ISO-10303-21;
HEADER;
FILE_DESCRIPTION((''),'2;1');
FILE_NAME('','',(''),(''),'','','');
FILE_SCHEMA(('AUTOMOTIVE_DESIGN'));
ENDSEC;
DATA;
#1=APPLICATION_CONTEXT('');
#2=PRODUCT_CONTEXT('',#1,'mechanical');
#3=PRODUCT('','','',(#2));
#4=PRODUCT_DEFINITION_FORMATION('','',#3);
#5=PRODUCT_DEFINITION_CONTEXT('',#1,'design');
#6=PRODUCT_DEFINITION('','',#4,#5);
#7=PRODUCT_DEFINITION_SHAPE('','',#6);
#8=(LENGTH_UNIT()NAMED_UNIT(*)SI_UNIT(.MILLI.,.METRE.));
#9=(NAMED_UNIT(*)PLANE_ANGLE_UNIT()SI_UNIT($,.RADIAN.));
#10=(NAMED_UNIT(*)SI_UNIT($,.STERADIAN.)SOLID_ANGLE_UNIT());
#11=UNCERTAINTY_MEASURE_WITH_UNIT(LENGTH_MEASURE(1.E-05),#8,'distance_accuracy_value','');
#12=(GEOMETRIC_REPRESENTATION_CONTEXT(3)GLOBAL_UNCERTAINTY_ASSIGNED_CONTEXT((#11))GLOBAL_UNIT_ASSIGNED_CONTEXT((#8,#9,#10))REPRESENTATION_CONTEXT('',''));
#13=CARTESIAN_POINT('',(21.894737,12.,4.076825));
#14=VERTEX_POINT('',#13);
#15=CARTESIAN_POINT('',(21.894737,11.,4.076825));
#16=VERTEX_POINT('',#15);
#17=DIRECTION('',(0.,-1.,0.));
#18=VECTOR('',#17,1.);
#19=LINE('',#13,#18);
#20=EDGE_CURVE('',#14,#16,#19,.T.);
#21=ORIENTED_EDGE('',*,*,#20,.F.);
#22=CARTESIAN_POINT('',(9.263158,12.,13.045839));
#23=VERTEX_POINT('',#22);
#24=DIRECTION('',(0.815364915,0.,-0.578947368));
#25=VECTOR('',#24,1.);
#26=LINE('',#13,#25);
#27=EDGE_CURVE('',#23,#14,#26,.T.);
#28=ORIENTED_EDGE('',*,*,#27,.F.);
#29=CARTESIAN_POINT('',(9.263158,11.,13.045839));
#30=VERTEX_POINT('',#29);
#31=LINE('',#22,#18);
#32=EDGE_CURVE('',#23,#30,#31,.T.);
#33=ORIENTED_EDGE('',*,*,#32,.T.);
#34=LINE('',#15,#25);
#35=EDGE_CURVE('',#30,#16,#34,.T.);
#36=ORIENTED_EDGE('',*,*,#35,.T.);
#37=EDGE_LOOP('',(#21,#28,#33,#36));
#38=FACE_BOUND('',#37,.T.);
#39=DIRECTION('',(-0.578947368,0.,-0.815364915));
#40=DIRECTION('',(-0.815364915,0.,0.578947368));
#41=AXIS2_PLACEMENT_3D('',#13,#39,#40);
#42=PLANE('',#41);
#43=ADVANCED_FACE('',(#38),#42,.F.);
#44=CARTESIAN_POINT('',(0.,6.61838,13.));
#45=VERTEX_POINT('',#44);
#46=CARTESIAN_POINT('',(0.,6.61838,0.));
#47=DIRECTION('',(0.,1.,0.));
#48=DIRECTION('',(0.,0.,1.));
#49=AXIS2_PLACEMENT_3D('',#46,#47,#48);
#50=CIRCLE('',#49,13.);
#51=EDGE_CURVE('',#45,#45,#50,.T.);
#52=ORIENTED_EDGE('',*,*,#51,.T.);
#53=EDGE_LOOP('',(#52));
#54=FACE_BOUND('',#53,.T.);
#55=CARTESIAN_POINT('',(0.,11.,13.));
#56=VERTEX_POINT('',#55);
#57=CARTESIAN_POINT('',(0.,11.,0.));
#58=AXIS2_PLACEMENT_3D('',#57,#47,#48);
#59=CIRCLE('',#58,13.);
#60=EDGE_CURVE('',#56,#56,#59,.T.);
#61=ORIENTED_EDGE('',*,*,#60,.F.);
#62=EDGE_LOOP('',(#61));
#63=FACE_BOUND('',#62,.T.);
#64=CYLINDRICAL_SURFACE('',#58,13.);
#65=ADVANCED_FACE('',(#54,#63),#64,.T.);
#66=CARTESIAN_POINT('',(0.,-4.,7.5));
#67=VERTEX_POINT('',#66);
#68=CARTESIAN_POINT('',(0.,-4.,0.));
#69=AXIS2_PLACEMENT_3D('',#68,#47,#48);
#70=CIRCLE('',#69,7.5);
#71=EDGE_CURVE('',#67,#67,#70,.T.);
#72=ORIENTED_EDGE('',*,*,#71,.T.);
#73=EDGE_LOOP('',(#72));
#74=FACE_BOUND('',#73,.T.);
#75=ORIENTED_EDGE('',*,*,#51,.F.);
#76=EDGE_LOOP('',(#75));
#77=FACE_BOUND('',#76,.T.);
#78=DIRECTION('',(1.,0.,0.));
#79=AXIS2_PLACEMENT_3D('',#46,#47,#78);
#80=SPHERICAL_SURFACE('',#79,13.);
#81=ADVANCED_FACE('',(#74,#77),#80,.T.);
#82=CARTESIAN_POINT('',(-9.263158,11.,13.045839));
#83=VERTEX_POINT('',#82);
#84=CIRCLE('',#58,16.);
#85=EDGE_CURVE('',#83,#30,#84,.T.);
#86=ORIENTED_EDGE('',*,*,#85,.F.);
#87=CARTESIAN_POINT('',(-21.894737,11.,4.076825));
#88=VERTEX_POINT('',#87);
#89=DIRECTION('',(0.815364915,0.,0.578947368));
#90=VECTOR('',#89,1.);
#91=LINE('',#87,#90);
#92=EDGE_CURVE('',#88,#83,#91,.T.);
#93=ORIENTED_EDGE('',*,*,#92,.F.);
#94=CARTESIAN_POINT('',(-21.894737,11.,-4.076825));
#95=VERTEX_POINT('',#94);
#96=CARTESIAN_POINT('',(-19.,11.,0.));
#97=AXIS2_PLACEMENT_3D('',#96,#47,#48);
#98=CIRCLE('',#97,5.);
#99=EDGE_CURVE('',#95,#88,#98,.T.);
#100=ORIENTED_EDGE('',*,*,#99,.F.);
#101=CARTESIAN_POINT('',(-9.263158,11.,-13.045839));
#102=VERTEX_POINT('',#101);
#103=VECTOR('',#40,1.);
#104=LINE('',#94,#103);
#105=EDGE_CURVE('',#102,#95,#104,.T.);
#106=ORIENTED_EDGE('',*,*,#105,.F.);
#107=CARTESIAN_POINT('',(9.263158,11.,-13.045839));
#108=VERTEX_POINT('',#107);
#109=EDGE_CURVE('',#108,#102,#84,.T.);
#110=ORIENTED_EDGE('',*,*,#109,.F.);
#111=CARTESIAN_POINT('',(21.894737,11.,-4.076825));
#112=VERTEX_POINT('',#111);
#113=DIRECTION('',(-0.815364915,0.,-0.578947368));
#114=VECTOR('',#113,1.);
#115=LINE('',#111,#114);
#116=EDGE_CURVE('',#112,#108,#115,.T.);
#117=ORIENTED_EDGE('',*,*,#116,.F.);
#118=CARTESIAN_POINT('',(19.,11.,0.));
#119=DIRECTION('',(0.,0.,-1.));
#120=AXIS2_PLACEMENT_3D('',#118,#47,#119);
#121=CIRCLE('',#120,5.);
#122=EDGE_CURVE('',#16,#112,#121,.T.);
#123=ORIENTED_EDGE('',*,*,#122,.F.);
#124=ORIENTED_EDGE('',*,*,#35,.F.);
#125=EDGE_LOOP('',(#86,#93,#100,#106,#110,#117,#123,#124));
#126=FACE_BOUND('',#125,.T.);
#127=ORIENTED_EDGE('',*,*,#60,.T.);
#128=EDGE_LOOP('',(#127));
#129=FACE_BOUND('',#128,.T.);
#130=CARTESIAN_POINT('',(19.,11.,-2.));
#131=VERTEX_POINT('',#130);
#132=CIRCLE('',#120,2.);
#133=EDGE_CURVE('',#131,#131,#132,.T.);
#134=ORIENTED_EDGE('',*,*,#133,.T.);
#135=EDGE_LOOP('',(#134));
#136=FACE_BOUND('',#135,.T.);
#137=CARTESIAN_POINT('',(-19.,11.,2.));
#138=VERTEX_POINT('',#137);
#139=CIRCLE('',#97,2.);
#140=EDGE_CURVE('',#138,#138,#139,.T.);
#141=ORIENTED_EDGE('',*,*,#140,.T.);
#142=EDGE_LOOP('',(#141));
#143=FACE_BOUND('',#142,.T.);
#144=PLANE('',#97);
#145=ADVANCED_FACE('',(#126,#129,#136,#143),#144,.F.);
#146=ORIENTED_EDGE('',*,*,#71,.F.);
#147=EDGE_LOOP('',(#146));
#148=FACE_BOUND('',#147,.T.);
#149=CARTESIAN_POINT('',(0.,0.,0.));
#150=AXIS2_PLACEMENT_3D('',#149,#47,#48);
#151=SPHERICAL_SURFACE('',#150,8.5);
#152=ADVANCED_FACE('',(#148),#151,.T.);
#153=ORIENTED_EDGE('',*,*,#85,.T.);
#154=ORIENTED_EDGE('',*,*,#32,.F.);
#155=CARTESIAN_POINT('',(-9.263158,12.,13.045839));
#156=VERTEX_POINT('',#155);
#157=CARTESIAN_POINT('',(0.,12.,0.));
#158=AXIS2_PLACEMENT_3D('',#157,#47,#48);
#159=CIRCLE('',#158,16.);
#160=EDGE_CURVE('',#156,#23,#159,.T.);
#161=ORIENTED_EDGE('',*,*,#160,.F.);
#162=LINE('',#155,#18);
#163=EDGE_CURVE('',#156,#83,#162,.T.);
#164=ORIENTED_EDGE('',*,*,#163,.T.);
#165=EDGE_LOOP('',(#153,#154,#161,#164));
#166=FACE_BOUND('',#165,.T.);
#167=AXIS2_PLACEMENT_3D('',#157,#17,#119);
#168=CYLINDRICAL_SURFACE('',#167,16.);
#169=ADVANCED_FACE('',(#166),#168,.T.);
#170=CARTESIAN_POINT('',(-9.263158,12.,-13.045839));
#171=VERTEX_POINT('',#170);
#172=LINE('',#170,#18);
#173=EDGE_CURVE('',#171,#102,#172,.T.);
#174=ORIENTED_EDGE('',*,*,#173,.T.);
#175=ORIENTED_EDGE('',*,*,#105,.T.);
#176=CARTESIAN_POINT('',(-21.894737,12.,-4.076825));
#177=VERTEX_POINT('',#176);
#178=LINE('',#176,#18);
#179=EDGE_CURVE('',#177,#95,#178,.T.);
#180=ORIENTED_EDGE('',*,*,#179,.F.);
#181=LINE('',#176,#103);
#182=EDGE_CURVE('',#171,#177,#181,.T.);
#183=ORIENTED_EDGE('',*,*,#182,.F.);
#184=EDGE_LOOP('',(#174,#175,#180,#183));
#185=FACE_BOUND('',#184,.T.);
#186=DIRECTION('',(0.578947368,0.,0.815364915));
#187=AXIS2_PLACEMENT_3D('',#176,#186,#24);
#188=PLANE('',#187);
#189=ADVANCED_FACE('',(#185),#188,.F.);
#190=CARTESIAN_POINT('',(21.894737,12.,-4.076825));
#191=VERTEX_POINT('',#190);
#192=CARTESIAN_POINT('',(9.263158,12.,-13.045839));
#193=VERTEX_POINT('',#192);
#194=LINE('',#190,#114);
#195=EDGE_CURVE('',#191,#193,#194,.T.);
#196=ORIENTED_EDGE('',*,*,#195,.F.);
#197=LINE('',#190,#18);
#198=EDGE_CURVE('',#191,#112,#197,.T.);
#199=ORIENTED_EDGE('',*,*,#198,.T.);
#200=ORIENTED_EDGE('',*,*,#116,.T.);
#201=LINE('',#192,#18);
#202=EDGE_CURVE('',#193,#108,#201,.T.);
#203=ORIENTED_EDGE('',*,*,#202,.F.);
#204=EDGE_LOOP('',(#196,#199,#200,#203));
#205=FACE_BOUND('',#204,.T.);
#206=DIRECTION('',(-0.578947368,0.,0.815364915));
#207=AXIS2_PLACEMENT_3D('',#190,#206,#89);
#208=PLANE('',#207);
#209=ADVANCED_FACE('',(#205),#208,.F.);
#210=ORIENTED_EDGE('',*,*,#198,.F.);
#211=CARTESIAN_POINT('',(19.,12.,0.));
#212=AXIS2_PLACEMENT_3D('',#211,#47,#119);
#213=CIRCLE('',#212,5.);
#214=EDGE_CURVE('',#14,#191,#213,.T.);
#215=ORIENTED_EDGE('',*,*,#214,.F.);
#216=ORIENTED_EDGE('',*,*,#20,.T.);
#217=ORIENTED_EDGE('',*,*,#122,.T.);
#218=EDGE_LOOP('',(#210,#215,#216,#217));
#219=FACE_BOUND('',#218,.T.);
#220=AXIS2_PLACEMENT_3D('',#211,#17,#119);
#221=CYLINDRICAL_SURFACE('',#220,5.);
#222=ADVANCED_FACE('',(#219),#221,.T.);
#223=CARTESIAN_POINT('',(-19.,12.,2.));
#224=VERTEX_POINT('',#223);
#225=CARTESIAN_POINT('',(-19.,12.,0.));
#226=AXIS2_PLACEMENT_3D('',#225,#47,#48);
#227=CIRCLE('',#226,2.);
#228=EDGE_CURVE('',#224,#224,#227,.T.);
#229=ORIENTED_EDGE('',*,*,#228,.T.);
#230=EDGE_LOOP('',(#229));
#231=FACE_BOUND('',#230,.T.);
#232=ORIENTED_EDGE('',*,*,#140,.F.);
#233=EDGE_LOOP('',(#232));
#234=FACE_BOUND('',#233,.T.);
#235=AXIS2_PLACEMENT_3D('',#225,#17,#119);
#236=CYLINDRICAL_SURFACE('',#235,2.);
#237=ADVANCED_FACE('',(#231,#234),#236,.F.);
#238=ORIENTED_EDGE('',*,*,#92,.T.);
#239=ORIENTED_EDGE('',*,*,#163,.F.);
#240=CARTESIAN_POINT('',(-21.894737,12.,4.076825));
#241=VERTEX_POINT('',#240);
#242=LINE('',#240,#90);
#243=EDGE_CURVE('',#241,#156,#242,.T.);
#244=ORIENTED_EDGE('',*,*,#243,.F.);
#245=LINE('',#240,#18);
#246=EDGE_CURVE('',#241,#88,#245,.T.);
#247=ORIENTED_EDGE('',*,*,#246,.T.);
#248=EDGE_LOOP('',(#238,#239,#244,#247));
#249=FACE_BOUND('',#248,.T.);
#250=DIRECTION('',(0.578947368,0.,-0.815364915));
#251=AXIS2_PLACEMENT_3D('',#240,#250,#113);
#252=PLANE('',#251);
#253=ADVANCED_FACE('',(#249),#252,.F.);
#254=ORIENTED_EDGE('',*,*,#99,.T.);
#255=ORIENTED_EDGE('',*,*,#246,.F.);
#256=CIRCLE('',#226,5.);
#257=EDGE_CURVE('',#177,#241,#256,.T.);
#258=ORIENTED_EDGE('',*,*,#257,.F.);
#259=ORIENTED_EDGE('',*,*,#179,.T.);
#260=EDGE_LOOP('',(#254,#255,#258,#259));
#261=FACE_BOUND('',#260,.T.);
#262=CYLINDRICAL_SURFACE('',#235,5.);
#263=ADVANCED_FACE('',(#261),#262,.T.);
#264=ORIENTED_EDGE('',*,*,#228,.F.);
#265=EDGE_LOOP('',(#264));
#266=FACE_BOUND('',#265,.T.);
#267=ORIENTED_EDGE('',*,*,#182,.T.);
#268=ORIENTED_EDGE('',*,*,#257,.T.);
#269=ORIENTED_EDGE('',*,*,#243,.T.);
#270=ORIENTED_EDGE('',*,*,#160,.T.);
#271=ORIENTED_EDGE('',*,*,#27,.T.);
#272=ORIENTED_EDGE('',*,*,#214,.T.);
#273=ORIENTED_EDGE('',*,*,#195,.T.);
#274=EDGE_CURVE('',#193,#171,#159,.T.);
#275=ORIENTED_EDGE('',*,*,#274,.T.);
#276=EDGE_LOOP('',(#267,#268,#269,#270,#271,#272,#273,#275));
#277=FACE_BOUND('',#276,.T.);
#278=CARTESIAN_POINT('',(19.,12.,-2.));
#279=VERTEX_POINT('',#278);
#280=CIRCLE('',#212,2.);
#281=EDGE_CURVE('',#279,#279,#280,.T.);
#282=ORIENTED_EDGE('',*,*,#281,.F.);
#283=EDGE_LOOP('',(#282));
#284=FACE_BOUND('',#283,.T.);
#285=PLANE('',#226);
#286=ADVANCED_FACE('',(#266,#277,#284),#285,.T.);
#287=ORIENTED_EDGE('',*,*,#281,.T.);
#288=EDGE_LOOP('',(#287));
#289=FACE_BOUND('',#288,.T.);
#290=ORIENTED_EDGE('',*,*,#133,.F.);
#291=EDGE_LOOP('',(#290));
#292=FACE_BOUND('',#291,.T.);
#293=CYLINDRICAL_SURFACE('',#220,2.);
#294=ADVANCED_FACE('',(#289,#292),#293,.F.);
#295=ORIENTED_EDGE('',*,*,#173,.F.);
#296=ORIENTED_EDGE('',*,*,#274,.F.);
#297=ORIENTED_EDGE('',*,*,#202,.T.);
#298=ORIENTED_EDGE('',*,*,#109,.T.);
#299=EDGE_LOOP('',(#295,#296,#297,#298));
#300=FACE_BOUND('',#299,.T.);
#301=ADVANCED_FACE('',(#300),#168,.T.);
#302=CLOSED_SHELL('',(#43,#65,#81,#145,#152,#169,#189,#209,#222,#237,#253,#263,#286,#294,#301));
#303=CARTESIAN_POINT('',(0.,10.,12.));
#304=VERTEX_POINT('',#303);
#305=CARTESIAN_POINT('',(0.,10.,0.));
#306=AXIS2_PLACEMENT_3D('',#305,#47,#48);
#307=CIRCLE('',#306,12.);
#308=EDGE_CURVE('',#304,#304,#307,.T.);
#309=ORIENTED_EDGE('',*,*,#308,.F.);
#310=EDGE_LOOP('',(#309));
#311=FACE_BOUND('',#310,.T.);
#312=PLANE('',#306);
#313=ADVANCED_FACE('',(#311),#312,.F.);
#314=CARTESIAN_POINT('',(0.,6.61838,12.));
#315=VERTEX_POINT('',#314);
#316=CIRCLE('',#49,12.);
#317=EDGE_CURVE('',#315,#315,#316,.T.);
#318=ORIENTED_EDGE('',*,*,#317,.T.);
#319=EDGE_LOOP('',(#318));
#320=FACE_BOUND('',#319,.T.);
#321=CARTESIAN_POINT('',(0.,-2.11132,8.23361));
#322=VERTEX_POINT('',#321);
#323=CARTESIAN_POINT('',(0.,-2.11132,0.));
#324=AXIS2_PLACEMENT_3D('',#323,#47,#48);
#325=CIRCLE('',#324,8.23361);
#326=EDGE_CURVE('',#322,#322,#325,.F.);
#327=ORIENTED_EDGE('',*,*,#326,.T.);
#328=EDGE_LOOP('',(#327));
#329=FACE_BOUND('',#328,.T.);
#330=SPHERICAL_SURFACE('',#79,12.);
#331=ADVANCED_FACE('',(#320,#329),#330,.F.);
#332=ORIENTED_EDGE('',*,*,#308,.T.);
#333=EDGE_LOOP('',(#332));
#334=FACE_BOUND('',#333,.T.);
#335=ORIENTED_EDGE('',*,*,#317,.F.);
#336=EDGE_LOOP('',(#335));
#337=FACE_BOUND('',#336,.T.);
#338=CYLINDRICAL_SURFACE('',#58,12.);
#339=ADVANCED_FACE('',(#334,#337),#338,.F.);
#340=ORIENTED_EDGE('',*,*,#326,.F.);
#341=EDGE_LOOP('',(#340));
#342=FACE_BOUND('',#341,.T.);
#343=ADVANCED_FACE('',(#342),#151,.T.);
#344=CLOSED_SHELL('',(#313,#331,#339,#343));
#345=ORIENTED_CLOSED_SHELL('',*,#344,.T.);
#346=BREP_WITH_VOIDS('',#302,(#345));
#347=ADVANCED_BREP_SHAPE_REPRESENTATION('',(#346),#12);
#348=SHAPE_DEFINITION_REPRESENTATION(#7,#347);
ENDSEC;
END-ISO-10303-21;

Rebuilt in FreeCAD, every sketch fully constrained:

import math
import FreeCAD as App
import Part
import Sketcher
from FreeCAD import Vector

doc = App.newDocument("Part")
body = doc.addObject("PartDesign::Body", "Body")

# Sketch on XZ plane
sketch1 = body.newObject("Sketcher::SketchObject", "Sketch")
sketch1.AttachmentSupport = (doc.getObject("XZ_Plane"), [""])
sketch1.MapMode = "FlatFace"
sketch1.addGeometry([
    Part.LineSegment(Vector(0, -8, 0), Vector(0, 8, 0)),
    Part.ArcOfCircle(Part.Circle(Vector(0, 0, 0), Vector(0, 0, 1), 8), math.radians(-90), math.radians(90)),
], False)
sketch1.addConstraint([
    Sketcher.Constraint("Coincident", 0, 1, 1, 1),
    Sketcher.Constraint("Coincident", 1, 2, 0, 2),
    Sketcher.Constraint("Vertical", 0),
    Sketcher.Constraint("Coincident", 1, 3, -1, 1),
    Sketcher.Constraint("PointOnObject", 0, 1, -2),
    Sketcher.Constraint("Radius", 1, 8.5),
])
revolution = body.newObject("PartDesign::Revolution", "Revolution")
revolution.Profile = sketch1
revolution.ReferenceAxis = (sketch1, ["V_Axis"])
revolution.Angle = 360

# Sketch on XY plane
sketch2 = body.newObject("Sketcher::SketchObject", "Sketch001")
sketch2.AttachmentSupport = (doc.getObject("XY_Plane"), [""])
sketch2.MapMode = "FlatFace"
sketch2.addGeometry([
    Part.LineSegment(Vector(13, 6.6, 0), Vector(13, 11, 0)),  # 0
    Part.LineSegment(Vector(13, 11, 0), Vector(0, 11, 0)),  # 1
    Part.LineSegment(Vector(0, 11, 0), Vector(0, 10, 0)),  # 2
    Part.LineSegment(Vector(0, 10, 0), Vector(12, 10, 0)),  # 3
    Part.LineSegment(Vector(12, 10, 0), Vector(12, 6.6, 0)),  # 4
    Part.ArcOfCircle(Part.Circle(Vector(0, 6.6, 0), Vector(0, 0, 1), 12), math.radians(-47), math.radians(0)),  # 5
    Part.ArcOfCircle(Part.Circle(Vector(0, 0, 0), Vector(0, 0, 1), 8.5), math.radians(-28.07), math.radians(-14.38)),  # 6
    Part.ArcOfCircle(Part.Circle(Vector(0, 6.6, 0), Vector(0, 0, 1), 13), math.radians(-55), math.radians(0)),  # 7
], False)
sketch2.addConstraint([
    Sketcher.Constraint("Coincident", 0, 2, 1, 1),
    Sketcher.Constraint("Coincident", 1, 2, 2, 1),
    Sketcher.Constraint("Coincident", 2, 2, 3, 1),
    Sketcher.Constraint("Coincident", 3, 2, 4, 1),
    Sketcher.Constraint("Tangent", 4, 2, 5, 2),
    Sketcher.Constraint("Coincident", 5, 1, 6, 2),
    Sketcher.Constraint("Coincident", 6, 1, 7, 1),
    Sketcher.Constraint("Tangent", 7, 2, 0, 1),
    Sketcher.Constraint("Vertical", 0),
    Sketcher.Constraint("Horizontal", 1),
    Sketcher.Constraint("Vertical", 2),
    Sketcher.Constraint("Horizontal", 3),
    Sketcher.Constraint("Vertical", 4),
    Sketcher.Constraint("Coincident", 6, 3, -1, 1),
    Sketcher.Constraint("Coincident", 7, 3, 5, 3),
    Sketcher.Constraint("PointOnObject", 5, 3, -2),
    Sketcher.Constraint("PointOnObject", 1, 2, -2),
    Sketcher.Constraint("Radius", 5, 12.0),
    Sketcher.Constraint("Radius", 7, 13.0),
    Sketcher.Constraint("Radius", 6, 8.5),
    Sketcher.Constraint("DistanceY", 2, 2, 2, 1, 1.0),
    Sketcher.Constraint("DistanceY", -1, 1, 0, 2, 11.0),
    Sketcher.Constraint("DistanceY", 6, 1, -1, 1, 4.0),
])
revolution2 = body.newObject("PartDesign::Revolution", "Revolution001")
revolution2.Profile = sketch2
revolution2.ReferenceAxis = (sketch2, ["V_Axis"])
revolution2.Angle = 360

# Sketch on XZ plane
sketch3 = body.newObject("Sketcher::SketchObject", "Sketch002")
sketch3.AttachmentSupport = (doc.getObject("XZ_Plane"), [""])
sketch3.MapMode = "FlatFace"
sketch3.AttachmentOffset = App.Placement(Vector(0, 0, -11), App.Rotation())
sketch3.addGeometry([
    Part.LineSegment(Vector(-9.3, -13, 0), Vector(-21.9, -4.1, 0)),  # 0
    Part.ArcOfCircle(Part.Circle(Vector(-19, 0, 0), Vector(0, 0, 1), 5), math.radians(125), math.radians(235)),  # 1
    Part.LineSegment(Vector(-21.9, 4.1, 0), Vector(-9.3, 13, 0)),  # 2
    Part.ArcOfCircle(Part.Circle(Vector(0, 0, 0), Vector(0, 0, 1), 16), math.radians(55), math.radians(125)),  # 3
    Part.LineSegment(Vector(9.3, 13, 0), Vector(21.9, 4.1, 0)),  # 4
    Part.ArcOfCircle(Part.Circle(Vector(19, 0, 0), Vector(0, 0, 1), 5), math.radians(-55), math.radians(55)),  # 5
    Part.LineSegment(Vector(21.9, -4.1, 0), Vector(9.3, -13, 0)),  # 6
    Part.ArcOfCircle(Part.Circle(Vector(0, 0, 0), Vector(0, 0, 1), 16), math.radians(-125), math.radians(-55)),  # 7
    Part.Circle(Vector(19, 0, 0), Vector(0, 0, 1), 2),  # 8
    Part.Circle(Vector(-19, 0, 0), Vector(0, 0, 1), 2),  # 9
], False)
sketch3.addConstraint([
    Sketcher.Constraint("Tangent", 0, 2, 1, 2),
    Sketcher.Constraint("Tangent", 1, 1, 2, 1),
    Sketcher.Constraint("Tangent", 2, 2, 3, 2),
    Sketcher.Constraint("Tangent", 3, 1, 4, 1),
    Sketcher.Constraint("Tangent", 4, 2, 5, 2),
    Sketcher.Constraint("Tangent", 5, 1, 6, 1),
    Sketcher.Constraint("Tangent", 6, 2, 7, 2),
    Sketcher.Constraint("Tangent", 7, 1, 0, 1),
    Sketcher.Constraint("Coincident", 3, 3, -1, 1),
    Sketcher.Constraint("Coincident", 7, 3, -1, 1),
    Sketcher.Constraint("Coincident", 8, 3, 5, 3),
    Sketcher.Constraint("Coincident", 9, 3, 1, 3),
    Sketcher.Constraint("Equal", 1, 5),
    Sketcher.Constraint("Equal", 3, 7),
    Sketcher.Constraint("Equal", 8, 9),
    Sketcher.Constraint("Symmetric", 1, 3, 5, 3, -1, 1),
    Sketcher.Constraint("PointOnObject", 1, 3, -1),
    Sketcher.Constraint("Diameter", 8, 4.0),
    Sketcher.Constraint("Radius", 1, 5.0),
    Sketcher.Constraint("Radius", 3, 16.0),
    Sketcher.Constraint("DistanceX", 1, 3, -1, 1, 19.0),
])
pad1 = body.newObject("PartDesign::Pad", "Pad")
pad1.Profile = sketch3
pad1.Length = 1
pad1.Reversed = True

doc.recompute()
